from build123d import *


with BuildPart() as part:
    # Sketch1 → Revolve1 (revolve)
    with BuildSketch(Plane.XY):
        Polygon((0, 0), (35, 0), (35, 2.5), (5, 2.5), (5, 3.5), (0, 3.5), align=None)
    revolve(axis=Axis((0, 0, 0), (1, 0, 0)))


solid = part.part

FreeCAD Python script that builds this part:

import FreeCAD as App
import Part
import Sketcher

V = App.Vector
Q = App.Units.Quantity


def add_polygon(sketch, points):
    """Adds a closed chain of lines whose ends are joined by coincident constraints."""
    first, n = sketch.GeometryCount, len(points)
    for a, b in zip(points, points[1:] + points[:1]):
        sketch.addGeometry(Part.LineSegment(App.Vector(*a, 0), App.Vector(*b, 0)), False)
    for i in range(n):
        sketch.addConstraint(Sketcher.Constraint("Coincident", first + i, 2, first + (i + 1) % n, 1))

doc = App.newDocument("Part")
body = doc.addObject("PartDesign::Body", "Body")

sketch1 = body.newObject("Sketcher::SketchObject", "Sketch")
sketch1.AttachmentSupport = (doc.getObject("XY_Plane"), [""])
sketch1.MapMode = "FlatFace"
add_polygon(sketch1, [(0, 0), (35, 0), (35, 2.5), (5, 2.5), (5, 3.5), (0, 3.5)])
sketch1.addConstraint(Sketcher.Constraint("Horizontal", 0))
sketch1.addConstraint(Sketcher.Constraint("Vertical", 1))
sketch1.addConstraint(Sketcher.Constraint("Horizontal", 2))
sketch1.addConstraint(Sketcher.Constraint("Vertical", 3))
sketch1.addConstraint(Sketcher.Constraint("Horizontal", 4))
sketch1.addConstraint(Sketcher.Constraint("Vertical", 5))
sketch1.addConstraint(Sketcher.Constraint("Coincident", 5, 2, -1, 1))
sketch1.addConstraint(Sketcher.Constraint("DistanceX", 0, 1, 0, 2, Q("35 mm")))
sketch1.addConstraint(Sketcher.Constraint("DistanceX", 2, 2, 2, 1, Q("30 mm")))
sketch1.addConstraint(Sketcher.Constraint("DistanceY", 3, 1, 3, 2, Q("1 mm")))
sketch1.addConstraint(Sketcher.Constraint("DistanceY", 1, 1, 1, 2, Q("2.5 mm")))
revolution = body.newObject("PartDesign::Revolution", "Revolution")
revolution.Profile = sketch1
revolution.ReferenceAxis = (sketch1, ["H_Axis"])
revolution.Angle = 360

doc.recompute()
